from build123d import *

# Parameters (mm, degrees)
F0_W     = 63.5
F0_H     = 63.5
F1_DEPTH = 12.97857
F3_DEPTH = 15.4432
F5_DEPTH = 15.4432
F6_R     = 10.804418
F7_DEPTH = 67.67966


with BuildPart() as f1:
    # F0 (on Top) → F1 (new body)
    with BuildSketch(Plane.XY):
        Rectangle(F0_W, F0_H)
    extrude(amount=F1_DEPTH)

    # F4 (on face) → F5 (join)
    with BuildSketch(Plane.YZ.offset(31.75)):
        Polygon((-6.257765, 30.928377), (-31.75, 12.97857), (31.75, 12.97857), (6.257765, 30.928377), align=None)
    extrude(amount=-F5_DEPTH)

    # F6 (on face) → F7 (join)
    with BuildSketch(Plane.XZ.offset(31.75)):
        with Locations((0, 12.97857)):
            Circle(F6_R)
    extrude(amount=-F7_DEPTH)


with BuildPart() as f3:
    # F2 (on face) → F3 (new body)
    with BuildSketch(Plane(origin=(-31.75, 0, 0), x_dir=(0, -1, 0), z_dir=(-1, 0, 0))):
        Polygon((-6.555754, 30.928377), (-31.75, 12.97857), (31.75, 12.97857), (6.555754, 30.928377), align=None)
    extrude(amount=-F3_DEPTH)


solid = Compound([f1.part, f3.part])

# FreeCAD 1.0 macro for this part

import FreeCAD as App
import Part
import Sketcher
Q = App.Units.Quantity

doc = App.newDocument("Part")
params = doc.addObject("Spreadsheet::Sheet", "Params")
for row, (alias, value) in enumerate([
    ("sketch1_width", "2.5 in"),
    ("pad1_length", "12.97857 mm"),
    ("sketch2_width", "2.5 in"),
    ("pad2_length", "0.608 in"),
    ("pad3_length", "67.67966 mm"),
    ("sketch4_width", "2.5 in"),
    ("pad4_length", "0.608 in"),
], start=1):
    params.set(f"A{row}", alias)
    params.set(f"B{row}", "=" + value)
    params.setAlias(f"B{row}", alias)

body = doc.addObject("PartDesign::Body", "Body")

# Sketch on XY plane
sketch1 = doc.addObject("Sketcher::SketchObject", "Sketch")
body.addObject(sketch1)
sketch1.AttachmentSupport = (doc.XY_Plane, [""])
sketch1.MapMode = "FlatFace"
sketch1.addGeometry([
    Part.LineSegment(App.Vector(-32, 32, 0), App.Vector(-32, -32, 0)),
    Part.LineSegment(App.Vector(-32, -32, 0), App.Vector(32, -32, 0)),
    Part.LineSegment(App.Vector(32, -32, 0), App.Vector(32, 32, 0)),
    Part.LineSegment(App.Vector(32, 32, 0), App.Vector(-32, 32, 0)),
], False)
sketch1.addConstraint([
    Sketcher.Constraint("Coincident", 0, 2, 1, 1),
    Sketcher.Constraint("Coincident", 1, 2, 2, 1),
    Sketcher.Constraint("Coincident", 2, 2, 3, 1),
    Sketcher.Constraint("Coincident", 3, 2, 0, 1),
    Sketcher.Constraint("Vertical", 0),
    Sketcher.Constraint("Horizontal", 1),
    Sketcher.Constraint("Vertical", 2),
    Sketcher.Constraint("Horizontal", 3),
    Sketcher.Constraint("Symmetric", 0, 2, 2, 2, -1, 1),
    Sketcher.Constraint("Equal", 3, 0),
    Sketcher.Constraint("DistanceX", 1, 1, 1, 2, Q("2.5 in")),
])
sketch1.setExpression("Constraints[10]", "Params.sketch1_width")
pad1 = doc.addObject("PartDesign::Pad", "Pad")
body.addObject(pad1)
pad1.Profile = sketch1
pad1.setExpression("Length", "Params.pad1_length")

# Sketch on YZ plane
sketch2 = doc.addObject("Sketcher::SketchObject", "Sketch001")
body.addObject(sketch2)
sketch2.AttachmentSupport = (doc.YZ_Plane, [""])
sketch2.MapMode = "FlatFace"
sketch2.AttachmentOffset = App.Placement(App.Vector(0, 0, 1.25 * 25.4), App.Rotation())
sketch2.addGeometry([
    Part.LineSegment(App.Vector(-6, 31, 0), App.Vector(-32, 13, 0)),
    Part.LineSegment(App.Vector(-32, 13, 0), App.Vector(32, 13, 0)),
    Part.LineSegment(App.Vector(32, 13, 0), App.Vector(6, 31, 0)),
    Part.LineSegment(App.Vector(6, 31, 0), App.Vector(-6, 31, 0)),
], False)
sketch2.addConstraint([
    Sketcher.Constraint("Coincident", 0, 2, 1, 1),
    Sketcher.Constraint("Coincident", 1, 2, 2, 1),
    Sketcher.Constraint("Coincident", 2, 2, 3, 1),
    Sketcher.Constraint("Coincident", 3, 2, 0, 1),
    Sketcher.Constraint("Horizontal", 1),
    Sketcher.Constraint("Horizontal", 3),
    Sketcher.Constraint("Equal", 0, 2),
    Sketcher.Constraint("DistanceX", 1, 1, 1, 2, Q("2.5 in")),
    Sketcher.Constraint("DistanceX", 0, 2, -1, 1, Q("1.25 in")),
    Sketcher.Constraint("DistanceX", 3, 2, 3, 1, 12.51553),
    Sketcher.Constraint("Distance", 0, 31.17771),
    Sketcher.Constraint("DistanceY", -1, 1, 0, 2, 12.97857),
])
sketch2.setExpression("Constraints[7]", "Params.sketch2_width")
pad2 = doc.addObject("PartDesign::Pad", "Pad001")
body.addObject(pad2)
pad2.Profile = sketch2
pad2.setExpression("Length", "Params.pad2_length")
pad2.Reversed = True

# Sketch on XZ plane
sketch3 = doc.addObject("Sketcher::SketchObject", "Sketch002")
body.addObject(sketch3)
sketch3.AttachmentSupport = (doc.XZ_Plane, [""])
sketch3.MapMode = "FlatFace"
sketch3.AttachmentOffset = App.Placement(App.Vector(0, 0, 1.25 * 25.4), App.Rotation())
sketch3.addGeometry(Part.Circle(App.Vector(0, 13, 0), App.Vector(0, 0, 1), 11), False)
sketch3.addConstraint([
    Sketcher.Constraint("PointOnObject", 0, 3, -2),
    Sketcher.Constraint("Diameter", 0, 21.608836),
    Sketcher.Constraint("DistanceY", -1, 1, 0, 3, 12.97857),
])
pad3 = doc.addObject("PartDesign::Pad", "Pad002")
body.addObject(pad3)
pad3.Profile = sketch3
pad3.setExpression("Length", "Params.pad3_length")
pad3.Reversed = True
body2 = doc.addObject("PartDesign::Body", "Body001")

# Sketch on YZ plane
sketch4 = doc.addObject("Sketcher::SketchObject", "Sketch003")
body2.addObject(sketch4)
sketch4.AttachmentSupport = (doc.getObject("YZ_Plane001"), [""])
sketch4.MapMode = "FlatFace"
sketch4.AttachmentOffset = App.Placement(App.Vector(0, 0, -1.25 * 25.4), App.Rotation())
sketch4.addGeometry([
    Part.LineSegment(App.Vector(7, 31, 0), App.Vector(32, 13, 0)),
    Part.LineSegment(App.Vector(32, 13, 0), App.Vector(-32, 13, 0)),
    Part.LineSegment(App.Vector(-32, 13, 0), App.Vector(-7, 31, 0)),
    Part.LineSegment(App.Vector(-7, 31, 0), App.Vector(7, 31, 0)),
], False)
sketch4.addConstraint([
    Sketcher.Constraint("Coincident", 0, 2, 1, 1),
    Sketcher.Constraint("Coincident", 1, 2, 2, 1),
    Sketcher.Constraint("Coincident", 2, 2, 3, 1),
    Sketcher.Constraint("Coincident", 3, 2, 0, 1),
    Sketcher.Constraint("Horizontal", 1),
    Sketcher.Constraint("Horizontal", 3),
    Sketcher.Constraint("Equal", 0, 2),
    Sketcher.Constraint("DistanceX", 1, 2, 1, 1, Q("2.5 in")),
    Sketcher.Constraint("DistanceX", -1, 1, 0, 2, Q("1.25 in")),
    Sketcher.Constraint("DistanceX", 3, 1, 3, 2, 13.111508),
    Sketcher.Constraint("DistanceY", -1, 1, 0, 2, 12.97857),
    Sketcher.Constraint("Distance", 0, 30.934537),
])
sketch4.setExpression("Constraints[7]", "Params.sketch4_width")
pad4 = doc.addObject("PartDesign::Pad", "Pad003")
body2.addObject(pad4)
pad4.Profile = sketch4
pad4.setExpression("Length", "Params.pad4_length")

doc.recompute()
